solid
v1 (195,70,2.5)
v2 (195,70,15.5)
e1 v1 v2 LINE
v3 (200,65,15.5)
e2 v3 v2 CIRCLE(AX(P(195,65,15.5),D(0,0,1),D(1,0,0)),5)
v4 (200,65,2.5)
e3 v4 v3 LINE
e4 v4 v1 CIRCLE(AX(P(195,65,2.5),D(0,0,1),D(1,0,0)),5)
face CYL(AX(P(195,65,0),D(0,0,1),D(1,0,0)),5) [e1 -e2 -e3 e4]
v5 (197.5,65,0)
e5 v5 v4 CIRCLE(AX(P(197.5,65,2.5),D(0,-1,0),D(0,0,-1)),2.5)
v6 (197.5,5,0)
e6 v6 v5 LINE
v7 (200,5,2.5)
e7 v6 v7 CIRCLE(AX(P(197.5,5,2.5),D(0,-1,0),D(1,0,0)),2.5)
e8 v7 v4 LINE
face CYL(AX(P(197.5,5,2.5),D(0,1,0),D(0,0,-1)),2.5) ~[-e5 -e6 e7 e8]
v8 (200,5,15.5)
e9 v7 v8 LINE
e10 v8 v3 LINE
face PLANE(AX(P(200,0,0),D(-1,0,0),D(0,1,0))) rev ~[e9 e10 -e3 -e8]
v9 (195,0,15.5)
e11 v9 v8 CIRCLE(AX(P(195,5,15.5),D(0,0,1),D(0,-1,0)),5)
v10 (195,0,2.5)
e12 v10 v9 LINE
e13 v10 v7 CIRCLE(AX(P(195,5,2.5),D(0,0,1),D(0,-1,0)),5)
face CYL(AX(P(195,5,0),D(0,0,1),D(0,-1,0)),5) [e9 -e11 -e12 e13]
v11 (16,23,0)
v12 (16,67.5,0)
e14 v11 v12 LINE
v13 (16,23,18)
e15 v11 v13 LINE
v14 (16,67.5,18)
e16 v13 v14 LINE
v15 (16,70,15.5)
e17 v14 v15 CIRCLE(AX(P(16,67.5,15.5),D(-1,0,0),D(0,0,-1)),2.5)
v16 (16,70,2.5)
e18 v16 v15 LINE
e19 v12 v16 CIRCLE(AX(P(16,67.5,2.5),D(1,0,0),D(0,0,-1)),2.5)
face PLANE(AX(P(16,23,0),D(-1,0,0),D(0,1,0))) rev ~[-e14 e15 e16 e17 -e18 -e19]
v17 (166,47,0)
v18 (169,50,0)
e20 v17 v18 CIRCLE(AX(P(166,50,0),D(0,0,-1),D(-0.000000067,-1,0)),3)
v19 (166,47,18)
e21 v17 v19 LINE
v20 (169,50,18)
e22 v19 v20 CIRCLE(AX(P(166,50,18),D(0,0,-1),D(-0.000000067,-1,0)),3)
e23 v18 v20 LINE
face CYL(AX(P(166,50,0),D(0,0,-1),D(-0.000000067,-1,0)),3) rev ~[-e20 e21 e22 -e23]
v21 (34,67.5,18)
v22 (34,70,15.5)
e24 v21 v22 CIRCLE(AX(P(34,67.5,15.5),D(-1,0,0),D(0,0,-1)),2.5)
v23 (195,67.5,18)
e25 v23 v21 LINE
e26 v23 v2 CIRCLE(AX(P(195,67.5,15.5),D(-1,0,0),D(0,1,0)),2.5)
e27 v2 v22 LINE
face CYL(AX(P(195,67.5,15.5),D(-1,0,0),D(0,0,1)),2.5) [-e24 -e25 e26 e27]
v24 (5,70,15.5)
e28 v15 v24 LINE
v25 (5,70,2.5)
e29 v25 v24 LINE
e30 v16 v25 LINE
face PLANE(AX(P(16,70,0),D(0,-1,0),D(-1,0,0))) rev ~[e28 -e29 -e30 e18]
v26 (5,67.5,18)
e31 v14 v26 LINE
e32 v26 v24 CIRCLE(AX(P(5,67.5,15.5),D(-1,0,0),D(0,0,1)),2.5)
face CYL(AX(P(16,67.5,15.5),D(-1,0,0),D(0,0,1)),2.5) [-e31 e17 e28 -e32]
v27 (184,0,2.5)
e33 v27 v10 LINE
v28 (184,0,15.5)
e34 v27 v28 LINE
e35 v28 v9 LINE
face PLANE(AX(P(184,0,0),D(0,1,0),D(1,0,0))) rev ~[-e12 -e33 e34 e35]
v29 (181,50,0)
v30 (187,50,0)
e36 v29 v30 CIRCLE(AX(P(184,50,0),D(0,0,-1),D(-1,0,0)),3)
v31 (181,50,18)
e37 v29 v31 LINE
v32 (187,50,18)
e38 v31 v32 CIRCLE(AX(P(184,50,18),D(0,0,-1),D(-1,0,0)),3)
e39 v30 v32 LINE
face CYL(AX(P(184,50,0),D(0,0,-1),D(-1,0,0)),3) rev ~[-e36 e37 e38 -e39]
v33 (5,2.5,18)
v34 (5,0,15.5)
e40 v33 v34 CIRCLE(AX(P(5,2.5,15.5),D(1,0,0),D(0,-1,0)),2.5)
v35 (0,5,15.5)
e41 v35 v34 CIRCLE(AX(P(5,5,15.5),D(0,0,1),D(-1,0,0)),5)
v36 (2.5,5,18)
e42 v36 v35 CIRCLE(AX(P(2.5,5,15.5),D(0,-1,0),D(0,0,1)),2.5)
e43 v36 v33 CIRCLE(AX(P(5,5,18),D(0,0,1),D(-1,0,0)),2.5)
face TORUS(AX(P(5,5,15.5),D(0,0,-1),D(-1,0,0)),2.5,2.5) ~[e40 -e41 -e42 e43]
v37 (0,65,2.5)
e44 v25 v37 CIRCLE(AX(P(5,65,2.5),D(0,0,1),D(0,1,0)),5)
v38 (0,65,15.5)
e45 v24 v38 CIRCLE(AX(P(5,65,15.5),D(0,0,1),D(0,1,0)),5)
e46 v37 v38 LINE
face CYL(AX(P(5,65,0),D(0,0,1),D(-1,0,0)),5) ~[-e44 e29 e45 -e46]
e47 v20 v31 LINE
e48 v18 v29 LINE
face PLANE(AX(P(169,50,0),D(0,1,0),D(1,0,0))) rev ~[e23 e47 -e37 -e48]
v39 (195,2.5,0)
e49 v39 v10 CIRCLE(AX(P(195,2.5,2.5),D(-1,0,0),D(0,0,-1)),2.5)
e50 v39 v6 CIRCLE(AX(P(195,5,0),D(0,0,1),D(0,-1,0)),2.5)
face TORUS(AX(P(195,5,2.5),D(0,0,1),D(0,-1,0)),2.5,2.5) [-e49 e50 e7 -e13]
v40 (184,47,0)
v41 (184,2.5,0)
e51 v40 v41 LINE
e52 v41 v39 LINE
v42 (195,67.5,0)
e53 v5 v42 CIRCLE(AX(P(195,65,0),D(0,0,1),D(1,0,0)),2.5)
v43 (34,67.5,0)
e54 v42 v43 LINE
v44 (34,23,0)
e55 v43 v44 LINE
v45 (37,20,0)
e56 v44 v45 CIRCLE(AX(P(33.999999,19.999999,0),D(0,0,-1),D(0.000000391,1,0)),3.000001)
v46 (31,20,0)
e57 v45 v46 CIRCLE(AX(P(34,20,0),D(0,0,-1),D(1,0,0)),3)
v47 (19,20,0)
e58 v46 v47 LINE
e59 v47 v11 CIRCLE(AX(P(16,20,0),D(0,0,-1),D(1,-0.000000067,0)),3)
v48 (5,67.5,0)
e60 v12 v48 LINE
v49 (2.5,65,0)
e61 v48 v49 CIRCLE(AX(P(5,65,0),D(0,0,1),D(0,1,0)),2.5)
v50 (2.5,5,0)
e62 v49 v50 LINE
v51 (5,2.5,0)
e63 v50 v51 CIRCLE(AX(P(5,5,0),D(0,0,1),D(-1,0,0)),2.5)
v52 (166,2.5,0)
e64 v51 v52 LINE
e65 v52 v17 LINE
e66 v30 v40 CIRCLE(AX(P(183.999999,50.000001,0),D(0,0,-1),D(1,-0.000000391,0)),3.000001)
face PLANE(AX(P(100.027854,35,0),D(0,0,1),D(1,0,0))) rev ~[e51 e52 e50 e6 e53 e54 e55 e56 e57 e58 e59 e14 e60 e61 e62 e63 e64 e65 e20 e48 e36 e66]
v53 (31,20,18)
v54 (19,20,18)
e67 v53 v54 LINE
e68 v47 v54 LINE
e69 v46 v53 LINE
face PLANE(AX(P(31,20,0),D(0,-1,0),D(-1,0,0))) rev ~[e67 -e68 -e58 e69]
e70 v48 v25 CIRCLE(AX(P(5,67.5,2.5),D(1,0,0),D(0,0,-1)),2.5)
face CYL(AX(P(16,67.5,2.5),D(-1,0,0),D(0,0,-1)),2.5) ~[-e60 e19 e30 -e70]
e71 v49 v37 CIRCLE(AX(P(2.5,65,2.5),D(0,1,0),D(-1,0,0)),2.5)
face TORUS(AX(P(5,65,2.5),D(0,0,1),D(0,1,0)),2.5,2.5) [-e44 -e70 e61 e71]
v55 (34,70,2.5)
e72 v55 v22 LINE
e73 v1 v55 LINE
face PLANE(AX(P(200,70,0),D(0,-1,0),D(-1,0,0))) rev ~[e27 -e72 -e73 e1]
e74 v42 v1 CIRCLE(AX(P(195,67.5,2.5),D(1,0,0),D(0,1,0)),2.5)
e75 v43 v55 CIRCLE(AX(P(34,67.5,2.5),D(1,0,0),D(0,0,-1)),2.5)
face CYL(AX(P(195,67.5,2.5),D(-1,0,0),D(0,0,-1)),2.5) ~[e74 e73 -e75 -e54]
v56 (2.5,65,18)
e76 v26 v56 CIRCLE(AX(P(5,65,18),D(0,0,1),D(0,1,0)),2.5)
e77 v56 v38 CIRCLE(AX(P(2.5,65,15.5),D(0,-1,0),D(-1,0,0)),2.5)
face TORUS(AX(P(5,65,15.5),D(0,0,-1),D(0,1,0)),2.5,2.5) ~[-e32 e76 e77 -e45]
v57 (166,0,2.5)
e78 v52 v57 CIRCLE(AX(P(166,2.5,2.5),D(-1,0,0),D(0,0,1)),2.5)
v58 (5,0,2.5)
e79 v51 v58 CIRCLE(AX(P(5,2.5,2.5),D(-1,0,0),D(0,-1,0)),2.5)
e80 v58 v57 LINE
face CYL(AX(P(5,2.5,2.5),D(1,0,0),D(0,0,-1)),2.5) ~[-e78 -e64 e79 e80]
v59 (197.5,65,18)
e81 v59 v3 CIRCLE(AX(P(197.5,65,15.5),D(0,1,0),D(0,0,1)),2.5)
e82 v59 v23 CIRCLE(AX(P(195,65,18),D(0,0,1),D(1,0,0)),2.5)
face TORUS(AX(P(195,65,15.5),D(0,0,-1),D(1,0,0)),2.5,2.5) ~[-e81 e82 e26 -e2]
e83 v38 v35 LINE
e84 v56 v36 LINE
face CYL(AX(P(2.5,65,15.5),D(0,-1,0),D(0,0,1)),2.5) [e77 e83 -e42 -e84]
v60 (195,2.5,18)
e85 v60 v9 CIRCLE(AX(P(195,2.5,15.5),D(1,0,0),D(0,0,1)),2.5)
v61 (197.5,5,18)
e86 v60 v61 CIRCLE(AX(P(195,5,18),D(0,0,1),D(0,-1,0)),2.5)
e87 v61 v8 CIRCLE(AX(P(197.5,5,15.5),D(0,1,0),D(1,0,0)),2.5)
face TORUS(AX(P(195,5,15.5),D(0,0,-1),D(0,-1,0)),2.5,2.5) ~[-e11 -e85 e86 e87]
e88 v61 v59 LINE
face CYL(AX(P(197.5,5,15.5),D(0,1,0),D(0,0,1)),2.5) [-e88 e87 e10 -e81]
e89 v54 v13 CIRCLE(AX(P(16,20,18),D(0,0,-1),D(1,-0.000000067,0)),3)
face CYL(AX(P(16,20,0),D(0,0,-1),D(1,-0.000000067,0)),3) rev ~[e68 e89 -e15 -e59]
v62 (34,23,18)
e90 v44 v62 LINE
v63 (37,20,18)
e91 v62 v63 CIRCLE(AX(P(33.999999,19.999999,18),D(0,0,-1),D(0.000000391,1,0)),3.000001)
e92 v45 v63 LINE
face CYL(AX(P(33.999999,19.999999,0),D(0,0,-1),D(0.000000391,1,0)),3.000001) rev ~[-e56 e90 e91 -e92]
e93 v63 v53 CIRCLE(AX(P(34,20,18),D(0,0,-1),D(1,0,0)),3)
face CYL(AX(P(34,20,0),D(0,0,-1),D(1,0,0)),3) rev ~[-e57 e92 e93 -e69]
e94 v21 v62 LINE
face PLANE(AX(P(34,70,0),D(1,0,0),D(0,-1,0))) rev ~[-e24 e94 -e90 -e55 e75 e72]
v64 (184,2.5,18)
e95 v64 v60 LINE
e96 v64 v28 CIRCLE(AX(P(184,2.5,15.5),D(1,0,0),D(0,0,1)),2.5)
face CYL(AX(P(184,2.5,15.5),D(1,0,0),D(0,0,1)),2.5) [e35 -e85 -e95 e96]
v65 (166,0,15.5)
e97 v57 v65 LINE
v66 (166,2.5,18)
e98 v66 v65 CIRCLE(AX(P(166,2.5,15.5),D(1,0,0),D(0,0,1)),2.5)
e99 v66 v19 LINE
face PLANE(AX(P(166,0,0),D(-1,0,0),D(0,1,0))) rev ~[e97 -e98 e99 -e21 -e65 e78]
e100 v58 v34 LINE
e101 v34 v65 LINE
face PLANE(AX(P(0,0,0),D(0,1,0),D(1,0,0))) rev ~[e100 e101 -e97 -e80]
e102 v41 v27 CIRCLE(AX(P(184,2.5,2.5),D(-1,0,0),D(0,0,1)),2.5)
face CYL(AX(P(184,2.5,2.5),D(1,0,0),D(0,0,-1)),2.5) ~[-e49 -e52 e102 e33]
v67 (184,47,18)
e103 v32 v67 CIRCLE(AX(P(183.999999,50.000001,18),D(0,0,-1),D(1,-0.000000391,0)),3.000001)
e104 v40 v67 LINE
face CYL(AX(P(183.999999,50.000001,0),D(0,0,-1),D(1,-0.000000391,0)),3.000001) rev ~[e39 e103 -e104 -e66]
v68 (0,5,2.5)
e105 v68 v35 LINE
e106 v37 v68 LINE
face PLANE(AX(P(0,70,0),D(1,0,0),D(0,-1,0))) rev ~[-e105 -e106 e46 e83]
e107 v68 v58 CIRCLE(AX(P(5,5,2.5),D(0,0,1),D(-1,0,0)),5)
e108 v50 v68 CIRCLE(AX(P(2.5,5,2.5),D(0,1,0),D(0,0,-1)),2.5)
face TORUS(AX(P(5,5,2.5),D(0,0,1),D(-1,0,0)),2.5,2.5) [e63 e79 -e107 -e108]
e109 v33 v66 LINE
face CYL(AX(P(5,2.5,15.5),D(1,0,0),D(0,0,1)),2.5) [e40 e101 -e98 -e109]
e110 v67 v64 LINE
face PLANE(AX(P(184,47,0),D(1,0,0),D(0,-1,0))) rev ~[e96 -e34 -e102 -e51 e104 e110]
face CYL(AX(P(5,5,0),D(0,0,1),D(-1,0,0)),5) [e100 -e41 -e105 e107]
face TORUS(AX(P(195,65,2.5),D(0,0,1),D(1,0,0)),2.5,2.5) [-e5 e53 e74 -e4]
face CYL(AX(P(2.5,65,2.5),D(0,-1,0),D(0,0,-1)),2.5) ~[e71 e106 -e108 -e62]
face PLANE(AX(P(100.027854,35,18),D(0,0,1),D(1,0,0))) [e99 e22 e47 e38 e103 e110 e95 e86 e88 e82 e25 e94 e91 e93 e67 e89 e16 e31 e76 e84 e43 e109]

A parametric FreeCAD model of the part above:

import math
import FreeCAD as App
import Part
import Sketcher
from FreeCAD import Vector
Q = App.Units.Quantity


def edges_at(feature, points):
    """Names of the edges that pass closest to the given points."""
    edges = feature.Shape.Edges
    near = lambda p: min(range(len(edges)), key=lambda i: edges[i].distToShape(Part.Vertex(*p))[0])
    return sorted({f"Edge{near(p) + 1}" for p in points})

doc = App.newDocument("Part")
params = doc.addObject("Spreadsheet::Sheet", "Params")
for row, (alias, value) in enumerate([
    ("sketch1_radius", "3 mm"),
    ("sketch1_width", "166 mm"),
    ("sketch1_width2", "12 mm"),
    ("sketch1_width3", "16 mm"),
    ("sketch1_height", "70 mm"),
    ("pad1_length", "18 mm"),
    ("fillet_radius", "5 mm"),
    ("fillet2_radius", "2.5 mm"),
], start=1):
    params.set(f"A{row}", alias)
    params.set(f"B{row}", "=" + value)
    params.setAlias(f"B{row}", alias)

body = doc.addObject("PartDesign::Body", "Body")

sketch1 = body.newObject("Sketcher::SketchObject", "Sketch")
sketch1.AttachmentSupport = (doc.getObject("XY_Plane"), [""])
sketch1.MapMode = "FlatFace"
sketch1.addGeometry([
    Part.LineSegment(Vector(0, 70, 0), Vector(0, 0, 0)),
    Part.LineSegment(Vector(0, 0, 0), Vector(166, 0, 0)),
    Part.LineSegment(Vector(166, 0, 0), Vector(166, 47, 0)),
    Part.ArcOfCircle(Part.Circle(Vector(166, 50, 0), Vector(0, 0, 1), 3), math.radians(0.000004), math.radians(269.999996)),
    Part.LineSegment(Vector(169, 50, 0), Vector(181, 50, 0)),
    Part.ArcOfCircle(Part.Circle(Vector(184, 50, 0), Vector(0, 0, 1), 3), math.radians(0), math.radians(180)),
    Part.ArcOfCircle(Part.Circle(Vector(183.999999, 50.000001, 0), Vector(0, 0, 1), 3.000001), math.radians(-89.999978), math.radians(-0.000022)),
    Part.LineSegment(Vector(184, 47, 0), Vector(184, 0, 0)),
    Part.LineSegment(Vector(184, 0, 0), Vector(200, 0, 0)),
    Part.LineSegment(Vector(200, 0, 0), Vector(200, 70, 0)),
    Part.LineSegment(Vector(200, 70, 0), Vector(34, 70, 0)),
    Part.LineSegment(Vector(34, 70, 0), Vector(34, 23, 0)),
    Part.ArcOfCircle(Part.Circle(Vector(33.999999, 19.999999, 0), Vector(0, 0, 1), 3.000001), math.radians(0.000022), math.radians(89.999978)),
    Part.ArcOfCircle(Part.Circle(Vector(34, 20, 0), Vector(0, 0, 1), 3), math.radians(180), math.radians(360)),
    Part.LineSegment(Vector(31, 20, 0), Vector(19, 20, 0)),
    Part.ArcOfCircle(Part.Circle(Vector(16, 20, 0), Vector(0, 0, 1), 3), math.radians(90.000004), math.radians(359.999996)),
    Part.LineSegment(Vector(16, 23, 0), Vector(16, 70, 0)),
    Part.LineSegment(Vector(16, 70, 0), Vector(0, 70, 0)),
], False)
sketch1.addConstraint([
    Sketcher.Constraint("Coincident", 0, 2, 1, 1),
    Sketcher.Constraint("Coincident", 1, 2, 2, 1),
    Sketcher.Constraint("Coincident", 2, 2, 3, 2),
    Sketcher.Constraint("Coincident", 3, 1, 4, 1),
    Sketcher.Constraint("Coincident", 4, 2, 5, 2),
    Sketcher.Constraint("Tangent", 5, 1, 6, 2),
    Sketcher.Constraint("Coincident", 6, 1, 7, 1),
    Sketcher.Constraint("Coincident", 7, 2, 8, 1),
    Sketcher.Constraint("Coincident", 8, 2, 9, 1),
    Sketcher.Constraint("Coincident", 9, 2, 10, 1),
    Sketcher.Constraint("Coincident", 10, 2, 11, 1),
    Sketcher.Constraint("Coincident", 11, 2, 12, 2),
    Sketcher.Constraint("Tangent", 12, 1, 13, 2),
    Sketcher.Constraint("Coincident", 13, 1, 14, 1),
    Sketcher.Constraint("Coincident", 14, 2, 15, 2),
    Sketcher.Constraint("Coincident", 15, 1, 16, 1),
    Sketcher.Constraint("Coincident", 16, 2, 17, 1),
    Sketcher.Constraint("Coincident", 17, 2, 0, 1),
    Sketcher.Constraint("Vertical", 0),
    Sketcher.Constraint("Horizontal", 1),
    Sketcher.Constraint("Vertical", 2),
    Sketcher.Constraint("Horizontal", 4),
    Sketcher.Constraint("Vertical", 7),
    Sketcher.Constraint("Horizontal", 8),
    Sketcher.Constraint("Vertical", 9),
    Sketcher.Constraint("Horizontal", 10),
    Sketcher.Constraint("Vertical", 11),
    Sketcher.Constraint("Horizontal", 14),
    Sketcher.Constraint("Vertical", 16),
    Sketcher.Constraint("Horizontal", 17),
    Sketcher.Constraint("Coincident", 0, 2, -1, 1),
    Sketcher.Constraint("Equal", 3, 5),
    Sketcher.Constraint("Equal", 5, 6),
    Sketcher.Constraint("Equal", 6, 12),
    Sketcher.Constraint("Equal", 12, 13),
    Sketcher.Constraint("Equal", 13, 15),
    Sketcher.Constraint("PointOnObject", 7, 2, -1),
    Sketcher.Constraint("Horizontal", 3, 3, 5, 3),
    Sketcher.Constraint("Horizontal", 13, 3, 15, 3),
    Sketcher.Constraint("Horizontal", 6, 3, 3, 1),
    Sketcher.Constraint("Horizontal", 4, 2, 5, 1),
    Sketcher.Constraint("Horizontal", 15, 3, 12, 1),
    Sketcher.Constraint("Horizontal", 12, 1, 13, 1),
    Sketcher.Constraint("Horizontal", 10, 2, 16, 2),
    Sketcher.Constraint("Vertical", 3, 3, 1, 2),
    Sketcher.Constraint("Vertical", 5, 3, 6, 1),
    Sketcher.Constraint("Vertical", 13, 3, 10, 2),
    Sketcher.Constraint("Equal", 1, 10),
    Sketcher.Constraint("Equal", 4, 14),
    Sketcher.Constraint("Equal", 8, 17),
    Sketcher.Constraint("Equal", 7, 11),
    Sketcher.Constraint("Radius", 3, Q("3 mm")),
    Sketcher.Constraint("DistanceX", 1, 1, 1, 2, Q("166 mm")),
    Sketcher.Constraint("DistanceX", 4, 1, 4, 2, Q("12 mm")),
    Sketcher.Constraint("DistanceX", 8, 1, 8, 2, Q("16 mm")),
    Sketcher.Constraint("DistanceY", 0, 2, 0, 1, Q("70 mm")),
    Sketcher.Constraint("DistanceY", 2, 1, 2, 2, Q("47 mm")),
])
sketch1.setExpression("Constraints[51]", "Params.sketch1_radius")
sketch1.setExpression("Constraints[52]", "Params.sketch1_width")
sketch1.setExpression("Constraints[53]", "Params.sketch1_width2")
sketch1.setExpression("Constraints[54]", "Params.sketch1_width3")
sketch1.setExpression("Constraints[55]", "Params.sketch1_height")
pad1 = body.newObject("PartDesign::Pad", "Pad")
pad1.Profile = sketch1
pad1.setExpression("Length", "Params.pad1_length")
doc.recompute()

fillet = body.newObject("PartDesign::Fillet", "Fillet")
fillet.Base = (pad1, edges_at(pad1, [
    (0, 0, 9),
    (200, 70, 9),
    (200, 0, 9),
    (0, 70, 9),
]))
fillet.setExpression("Radius", "Params.fillet_radius")
doc.recompute()

fillet2 = body.newObject("PartDesign::Fillet", "Fillet001")
fillet2.Base = (fillet, edges_at(fillet, [
    (85.5, 0, 18),
    (85.5, 0, 0),
    (114.5, 70, 18),
    (200, 35, 0),
]))
fillet2.setExpression("Radius", "Params.fillet2_radius")

doc.recompute()
